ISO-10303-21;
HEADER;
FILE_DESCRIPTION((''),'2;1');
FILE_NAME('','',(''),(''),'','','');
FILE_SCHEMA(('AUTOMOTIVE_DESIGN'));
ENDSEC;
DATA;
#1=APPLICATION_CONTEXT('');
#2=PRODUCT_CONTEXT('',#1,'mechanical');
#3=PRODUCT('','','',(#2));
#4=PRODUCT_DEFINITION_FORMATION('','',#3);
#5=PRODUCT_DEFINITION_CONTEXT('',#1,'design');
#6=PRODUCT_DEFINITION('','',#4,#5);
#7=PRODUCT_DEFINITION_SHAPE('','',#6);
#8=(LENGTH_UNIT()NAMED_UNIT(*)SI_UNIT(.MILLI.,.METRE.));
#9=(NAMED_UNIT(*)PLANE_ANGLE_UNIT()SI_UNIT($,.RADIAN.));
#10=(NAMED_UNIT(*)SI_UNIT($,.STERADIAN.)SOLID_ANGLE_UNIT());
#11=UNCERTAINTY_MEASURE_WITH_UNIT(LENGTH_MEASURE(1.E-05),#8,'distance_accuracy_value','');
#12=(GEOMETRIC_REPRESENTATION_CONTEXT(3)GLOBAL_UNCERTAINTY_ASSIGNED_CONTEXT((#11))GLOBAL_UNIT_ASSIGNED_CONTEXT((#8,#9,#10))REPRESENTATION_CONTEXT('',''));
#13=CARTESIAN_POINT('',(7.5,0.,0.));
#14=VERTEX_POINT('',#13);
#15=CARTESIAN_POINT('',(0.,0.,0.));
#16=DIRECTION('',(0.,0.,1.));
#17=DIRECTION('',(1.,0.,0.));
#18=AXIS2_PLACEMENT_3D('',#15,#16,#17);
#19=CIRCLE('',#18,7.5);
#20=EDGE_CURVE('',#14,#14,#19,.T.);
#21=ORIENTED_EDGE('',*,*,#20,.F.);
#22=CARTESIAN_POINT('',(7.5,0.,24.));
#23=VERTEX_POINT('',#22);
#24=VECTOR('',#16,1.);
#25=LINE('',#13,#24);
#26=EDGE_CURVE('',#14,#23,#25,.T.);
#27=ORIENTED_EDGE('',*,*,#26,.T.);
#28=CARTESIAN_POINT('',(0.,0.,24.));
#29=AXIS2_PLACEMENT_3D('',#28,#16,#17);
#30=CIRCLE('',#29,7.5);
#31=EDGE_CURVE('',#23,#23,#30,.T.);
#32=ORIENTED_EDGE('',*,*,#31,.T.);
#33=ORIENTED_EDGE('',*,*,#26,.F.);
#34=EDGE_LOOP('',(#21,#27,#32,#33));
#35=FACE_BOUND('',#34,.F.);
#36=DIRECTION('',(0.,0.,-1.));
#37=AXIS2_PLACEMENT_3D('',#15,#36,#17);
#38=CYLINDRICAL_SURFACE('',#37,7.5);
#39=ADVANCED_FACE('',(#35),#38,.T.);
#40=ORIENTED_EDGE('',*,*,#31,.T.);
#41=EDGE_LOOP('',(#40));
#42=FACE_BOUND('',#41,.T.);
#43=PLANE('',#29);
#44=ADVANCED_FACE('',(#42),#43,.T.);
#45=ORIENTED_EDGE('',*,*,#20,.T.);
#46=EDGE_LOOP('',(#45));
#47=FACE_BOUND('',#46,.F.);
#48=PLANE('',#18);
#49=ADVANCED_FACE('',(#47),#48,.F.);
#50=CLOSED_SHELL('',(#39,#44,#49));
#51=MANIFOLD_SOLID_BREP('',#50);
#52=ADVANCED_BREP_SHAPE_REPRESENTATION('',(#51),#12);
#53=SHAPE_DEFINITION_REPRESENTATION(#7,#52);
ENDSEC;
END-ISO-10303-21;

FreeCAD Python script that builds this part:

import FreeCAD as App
import Part
import Sketcher

V = App.Vector
Q = App.Units.Quantity

doc = App.newDocument("Part")
body = doc.addObject("PartDesign::Body", "Body")

# Sketch on XY plane
sketch1 = body.newObject("Sketcher::SketchObject", "Sketch")
sketch1.AttachmentSupport = (doc.getObject("XY_Plane"), [""])
sketch1.MapMode = "FlatFace"
sketch1.addGeometry(Part.Circle(V(0, 0, 0), V(0, 0, 1), 8), False)
sketch1.addConstraint(Sketcher.Constraint("Coincident", 0, 3, -1, 1))
sketch1.addConstraint(Sketcher.Constraint("Diameter", 0, Q("15 mm")))
pad1 = body.newObject("PartDesign::Pad", "Pad")
pad1.Profile = sketch1
pad1.Length = 24

doc.recompute()
